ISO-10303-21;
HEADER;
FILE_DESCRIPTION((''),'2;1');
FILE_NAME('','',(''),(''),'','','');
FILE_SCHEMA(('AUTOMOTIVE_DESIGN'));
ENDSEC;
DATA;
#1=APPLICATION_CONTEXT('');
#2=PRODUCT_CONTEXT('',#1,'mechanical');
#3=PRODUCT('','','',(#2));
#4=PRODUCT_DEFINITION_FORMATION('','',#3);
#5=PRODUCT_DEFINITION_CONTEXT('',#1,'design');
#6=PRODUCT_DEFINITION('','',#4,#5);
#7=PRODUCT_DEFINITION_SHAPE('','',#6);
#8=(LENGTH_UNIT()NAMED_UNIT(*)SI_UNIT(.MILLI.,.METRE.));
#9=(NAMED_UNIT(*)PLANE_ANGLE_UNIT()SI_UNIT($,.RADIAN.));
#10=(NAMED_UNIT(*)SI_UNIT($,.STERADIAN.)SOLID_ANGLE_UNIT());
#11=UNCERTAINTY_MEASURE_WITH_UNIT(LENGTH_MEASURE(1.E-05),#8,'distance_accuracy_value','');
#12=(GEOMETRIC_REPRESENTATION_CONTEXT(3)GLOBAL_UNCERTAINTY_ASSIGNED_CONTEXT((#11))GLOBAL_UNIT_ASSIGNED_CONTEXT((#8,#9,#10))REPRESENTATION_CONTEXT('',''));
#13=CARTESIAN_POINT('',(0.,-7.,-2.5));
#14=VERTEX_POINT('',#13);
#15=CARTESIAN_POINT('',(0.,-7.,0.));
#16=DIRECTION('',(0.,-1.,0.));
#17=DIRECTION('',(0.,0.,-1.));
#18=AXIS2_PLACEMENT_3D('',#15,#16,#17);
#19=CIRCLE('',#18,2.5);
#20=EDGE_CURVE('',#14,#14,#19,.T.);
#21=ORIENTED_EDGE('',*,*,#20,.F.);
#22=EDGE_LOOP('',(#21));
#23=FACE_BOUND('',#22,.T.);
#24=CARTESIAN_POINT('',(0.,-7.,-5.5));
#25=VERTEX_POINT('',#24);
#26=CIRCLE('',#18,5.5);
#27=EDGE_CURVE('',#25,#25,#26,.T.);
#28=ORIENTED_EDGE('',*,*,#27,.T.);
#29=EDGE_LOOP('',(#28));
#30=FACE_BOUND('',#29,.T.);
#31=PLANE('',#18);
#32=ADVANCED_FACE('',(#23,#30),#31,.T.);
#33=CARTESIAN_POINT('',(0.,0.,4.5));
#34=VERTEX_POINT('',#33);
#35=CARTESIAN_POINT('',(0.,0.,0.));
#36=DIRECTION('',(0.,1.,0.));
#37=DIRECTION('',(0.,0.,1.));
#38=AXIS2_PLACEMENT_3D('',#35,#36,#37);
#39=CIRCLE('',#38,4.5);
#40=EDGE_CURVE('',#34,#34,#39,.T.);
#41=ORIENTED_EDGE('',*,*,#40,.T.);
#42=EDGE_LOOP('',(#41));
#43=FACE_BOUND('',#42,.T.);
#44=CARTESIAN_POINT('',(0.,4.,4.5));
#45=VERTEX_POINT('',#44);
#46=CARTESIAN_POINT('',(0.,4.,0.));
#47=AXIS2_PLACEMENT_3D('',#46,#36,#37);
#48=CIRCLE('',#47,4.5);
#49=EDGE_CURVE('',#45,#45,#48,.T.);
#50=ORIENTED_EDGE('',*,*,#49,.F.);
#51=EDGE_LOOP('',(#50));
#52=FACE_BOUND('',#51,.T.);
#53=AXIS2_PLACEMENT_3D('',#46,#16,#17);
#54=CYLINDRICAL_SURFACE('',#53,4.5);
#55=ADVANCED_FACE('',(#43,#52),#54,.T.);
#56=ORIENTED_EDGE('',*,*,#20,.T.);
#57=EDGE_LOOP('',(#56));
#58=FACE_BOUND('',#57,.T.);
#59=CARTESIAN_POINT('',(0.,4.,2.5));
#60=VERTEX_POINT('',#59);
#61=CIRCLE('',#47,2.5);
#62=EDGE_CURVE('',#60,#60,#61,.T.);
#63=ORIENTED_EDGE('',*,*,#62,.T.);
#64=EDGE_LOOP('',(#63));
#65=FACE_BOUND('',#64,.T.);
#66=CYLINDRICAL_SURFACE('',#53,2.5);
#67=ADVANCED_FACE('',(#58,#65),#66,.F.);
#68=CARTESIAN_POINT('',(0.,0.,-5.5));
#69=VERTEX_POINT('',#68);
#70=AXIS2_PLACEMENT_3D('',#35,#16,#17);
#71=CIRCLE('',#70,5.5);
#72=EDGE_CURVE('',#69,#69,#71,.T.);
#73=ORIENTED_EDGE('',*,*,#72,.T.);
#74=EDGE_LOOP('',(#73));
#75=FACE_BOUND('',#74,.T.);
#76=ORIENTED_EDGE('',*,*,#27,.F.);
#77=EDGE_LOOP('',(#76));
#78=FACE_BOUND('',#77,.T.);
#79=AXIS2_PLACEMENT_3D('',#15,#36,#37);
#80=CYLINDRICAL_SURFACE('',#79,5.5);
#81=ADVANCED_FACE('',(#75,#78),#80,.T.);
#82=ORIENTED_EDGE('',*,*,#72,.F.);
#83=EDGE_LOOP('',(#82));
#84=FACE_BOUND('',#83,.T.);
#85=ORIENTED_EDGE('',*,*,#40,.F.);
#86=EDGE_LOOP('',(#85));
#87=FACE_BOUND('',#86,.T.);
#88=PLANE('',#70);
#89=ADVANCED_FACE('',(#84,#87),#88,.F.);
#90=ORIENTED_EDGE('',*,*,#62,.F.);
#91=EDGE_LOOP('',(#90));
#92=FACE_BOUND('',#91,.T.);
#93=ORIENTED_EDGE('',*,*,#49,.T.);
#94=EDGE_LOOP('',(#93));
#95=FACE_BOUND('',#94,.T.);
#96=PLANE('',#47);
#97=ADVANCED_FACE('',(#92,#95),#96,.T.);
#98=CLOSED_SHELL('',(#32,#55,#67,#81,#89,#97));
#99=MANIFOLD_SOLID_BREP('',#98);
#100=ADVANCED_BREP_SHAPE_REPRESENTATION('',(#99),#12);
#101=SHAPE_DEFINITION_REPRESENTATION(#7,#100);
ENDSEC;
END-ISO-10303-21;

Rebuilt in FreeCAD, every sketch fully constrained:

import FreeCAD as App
import Part
import Sketcher
Q = App.Units.Quantity

doc = App.newDocument("Part")
body = doc.addObject("PartDesign::Body", "Body")

# Sketch on XZ plane
sketch1 = body.newObject("Sketcher::SketchObject", "Sketch")
sketch1.AttachmentSupport = (doc.getObject("XZ_Plane"), [""])
sketch1.MapMode = "FlatFace"
sketch1.addGeometry([
    Part.Circle(App.Vector(0, 0, 0), App.Vector(0, 0, 1), 4.5),
    Part.Circle(App.Vector(0, 0, 0), App.Vector(0, 0, 1), 2.5),
], False)
sketch1.addConstraint([
    Sketcher.Constraint("Coincident", 0, 3, -1, 1),
    Sketcher.Constraint("Coincident", 1, 3, -1, 1),
    Sketcher.Constraint("Diameter", 0, Q("9 mm")),
    Sketcher.Constraint("Diameter", 1, Q("5 mm")),
])
pad1 = body.newObject("PartDesign::Pad", "Pad")
pad1.Profile = sketch1
pad1.Length = 4
pad1.Reversed = True

# Sketch on XZ plane
sketch2 = body.newObject("Sketcher::SketchObject", "Sketch001")
sketch2.AttachmentSupport = (doc.getObject("XZ_Plane"), [""])
sketch2.MapMode = "FlatFace"
sketch2.AttachmentOffset = App.Placement(App.Vector(0, 0, 7), App.Rotation())
sketch2.addGeometry([
    Part.Circle(App.Vector(0, 0, 0), App.Vector(0, 0, 1), 5.5),
    Part.Circle(App.Vector(0, 0, 0), App.Vector(0, 0, 1), 2.5),
], False)
sketch2.addConstraint([
    Sketcher.Constraint("Coincident", 0, 3, -1, 1),
    Sketcher.Constraint("Coincident", 1, 3, -1, 1),
    Sketcher.Constraint("Diameter", 0, Q("11 mm")),
    Sketcher.Constraint("Diameter", 1, Q("5 mm")),
])
pad2 = body.newObject("PartDesign::Pad", "Pad001")
pad2.Profile = sketch2
pad2.Length = 7
pad2.Reversed = True

doc.recompute()
